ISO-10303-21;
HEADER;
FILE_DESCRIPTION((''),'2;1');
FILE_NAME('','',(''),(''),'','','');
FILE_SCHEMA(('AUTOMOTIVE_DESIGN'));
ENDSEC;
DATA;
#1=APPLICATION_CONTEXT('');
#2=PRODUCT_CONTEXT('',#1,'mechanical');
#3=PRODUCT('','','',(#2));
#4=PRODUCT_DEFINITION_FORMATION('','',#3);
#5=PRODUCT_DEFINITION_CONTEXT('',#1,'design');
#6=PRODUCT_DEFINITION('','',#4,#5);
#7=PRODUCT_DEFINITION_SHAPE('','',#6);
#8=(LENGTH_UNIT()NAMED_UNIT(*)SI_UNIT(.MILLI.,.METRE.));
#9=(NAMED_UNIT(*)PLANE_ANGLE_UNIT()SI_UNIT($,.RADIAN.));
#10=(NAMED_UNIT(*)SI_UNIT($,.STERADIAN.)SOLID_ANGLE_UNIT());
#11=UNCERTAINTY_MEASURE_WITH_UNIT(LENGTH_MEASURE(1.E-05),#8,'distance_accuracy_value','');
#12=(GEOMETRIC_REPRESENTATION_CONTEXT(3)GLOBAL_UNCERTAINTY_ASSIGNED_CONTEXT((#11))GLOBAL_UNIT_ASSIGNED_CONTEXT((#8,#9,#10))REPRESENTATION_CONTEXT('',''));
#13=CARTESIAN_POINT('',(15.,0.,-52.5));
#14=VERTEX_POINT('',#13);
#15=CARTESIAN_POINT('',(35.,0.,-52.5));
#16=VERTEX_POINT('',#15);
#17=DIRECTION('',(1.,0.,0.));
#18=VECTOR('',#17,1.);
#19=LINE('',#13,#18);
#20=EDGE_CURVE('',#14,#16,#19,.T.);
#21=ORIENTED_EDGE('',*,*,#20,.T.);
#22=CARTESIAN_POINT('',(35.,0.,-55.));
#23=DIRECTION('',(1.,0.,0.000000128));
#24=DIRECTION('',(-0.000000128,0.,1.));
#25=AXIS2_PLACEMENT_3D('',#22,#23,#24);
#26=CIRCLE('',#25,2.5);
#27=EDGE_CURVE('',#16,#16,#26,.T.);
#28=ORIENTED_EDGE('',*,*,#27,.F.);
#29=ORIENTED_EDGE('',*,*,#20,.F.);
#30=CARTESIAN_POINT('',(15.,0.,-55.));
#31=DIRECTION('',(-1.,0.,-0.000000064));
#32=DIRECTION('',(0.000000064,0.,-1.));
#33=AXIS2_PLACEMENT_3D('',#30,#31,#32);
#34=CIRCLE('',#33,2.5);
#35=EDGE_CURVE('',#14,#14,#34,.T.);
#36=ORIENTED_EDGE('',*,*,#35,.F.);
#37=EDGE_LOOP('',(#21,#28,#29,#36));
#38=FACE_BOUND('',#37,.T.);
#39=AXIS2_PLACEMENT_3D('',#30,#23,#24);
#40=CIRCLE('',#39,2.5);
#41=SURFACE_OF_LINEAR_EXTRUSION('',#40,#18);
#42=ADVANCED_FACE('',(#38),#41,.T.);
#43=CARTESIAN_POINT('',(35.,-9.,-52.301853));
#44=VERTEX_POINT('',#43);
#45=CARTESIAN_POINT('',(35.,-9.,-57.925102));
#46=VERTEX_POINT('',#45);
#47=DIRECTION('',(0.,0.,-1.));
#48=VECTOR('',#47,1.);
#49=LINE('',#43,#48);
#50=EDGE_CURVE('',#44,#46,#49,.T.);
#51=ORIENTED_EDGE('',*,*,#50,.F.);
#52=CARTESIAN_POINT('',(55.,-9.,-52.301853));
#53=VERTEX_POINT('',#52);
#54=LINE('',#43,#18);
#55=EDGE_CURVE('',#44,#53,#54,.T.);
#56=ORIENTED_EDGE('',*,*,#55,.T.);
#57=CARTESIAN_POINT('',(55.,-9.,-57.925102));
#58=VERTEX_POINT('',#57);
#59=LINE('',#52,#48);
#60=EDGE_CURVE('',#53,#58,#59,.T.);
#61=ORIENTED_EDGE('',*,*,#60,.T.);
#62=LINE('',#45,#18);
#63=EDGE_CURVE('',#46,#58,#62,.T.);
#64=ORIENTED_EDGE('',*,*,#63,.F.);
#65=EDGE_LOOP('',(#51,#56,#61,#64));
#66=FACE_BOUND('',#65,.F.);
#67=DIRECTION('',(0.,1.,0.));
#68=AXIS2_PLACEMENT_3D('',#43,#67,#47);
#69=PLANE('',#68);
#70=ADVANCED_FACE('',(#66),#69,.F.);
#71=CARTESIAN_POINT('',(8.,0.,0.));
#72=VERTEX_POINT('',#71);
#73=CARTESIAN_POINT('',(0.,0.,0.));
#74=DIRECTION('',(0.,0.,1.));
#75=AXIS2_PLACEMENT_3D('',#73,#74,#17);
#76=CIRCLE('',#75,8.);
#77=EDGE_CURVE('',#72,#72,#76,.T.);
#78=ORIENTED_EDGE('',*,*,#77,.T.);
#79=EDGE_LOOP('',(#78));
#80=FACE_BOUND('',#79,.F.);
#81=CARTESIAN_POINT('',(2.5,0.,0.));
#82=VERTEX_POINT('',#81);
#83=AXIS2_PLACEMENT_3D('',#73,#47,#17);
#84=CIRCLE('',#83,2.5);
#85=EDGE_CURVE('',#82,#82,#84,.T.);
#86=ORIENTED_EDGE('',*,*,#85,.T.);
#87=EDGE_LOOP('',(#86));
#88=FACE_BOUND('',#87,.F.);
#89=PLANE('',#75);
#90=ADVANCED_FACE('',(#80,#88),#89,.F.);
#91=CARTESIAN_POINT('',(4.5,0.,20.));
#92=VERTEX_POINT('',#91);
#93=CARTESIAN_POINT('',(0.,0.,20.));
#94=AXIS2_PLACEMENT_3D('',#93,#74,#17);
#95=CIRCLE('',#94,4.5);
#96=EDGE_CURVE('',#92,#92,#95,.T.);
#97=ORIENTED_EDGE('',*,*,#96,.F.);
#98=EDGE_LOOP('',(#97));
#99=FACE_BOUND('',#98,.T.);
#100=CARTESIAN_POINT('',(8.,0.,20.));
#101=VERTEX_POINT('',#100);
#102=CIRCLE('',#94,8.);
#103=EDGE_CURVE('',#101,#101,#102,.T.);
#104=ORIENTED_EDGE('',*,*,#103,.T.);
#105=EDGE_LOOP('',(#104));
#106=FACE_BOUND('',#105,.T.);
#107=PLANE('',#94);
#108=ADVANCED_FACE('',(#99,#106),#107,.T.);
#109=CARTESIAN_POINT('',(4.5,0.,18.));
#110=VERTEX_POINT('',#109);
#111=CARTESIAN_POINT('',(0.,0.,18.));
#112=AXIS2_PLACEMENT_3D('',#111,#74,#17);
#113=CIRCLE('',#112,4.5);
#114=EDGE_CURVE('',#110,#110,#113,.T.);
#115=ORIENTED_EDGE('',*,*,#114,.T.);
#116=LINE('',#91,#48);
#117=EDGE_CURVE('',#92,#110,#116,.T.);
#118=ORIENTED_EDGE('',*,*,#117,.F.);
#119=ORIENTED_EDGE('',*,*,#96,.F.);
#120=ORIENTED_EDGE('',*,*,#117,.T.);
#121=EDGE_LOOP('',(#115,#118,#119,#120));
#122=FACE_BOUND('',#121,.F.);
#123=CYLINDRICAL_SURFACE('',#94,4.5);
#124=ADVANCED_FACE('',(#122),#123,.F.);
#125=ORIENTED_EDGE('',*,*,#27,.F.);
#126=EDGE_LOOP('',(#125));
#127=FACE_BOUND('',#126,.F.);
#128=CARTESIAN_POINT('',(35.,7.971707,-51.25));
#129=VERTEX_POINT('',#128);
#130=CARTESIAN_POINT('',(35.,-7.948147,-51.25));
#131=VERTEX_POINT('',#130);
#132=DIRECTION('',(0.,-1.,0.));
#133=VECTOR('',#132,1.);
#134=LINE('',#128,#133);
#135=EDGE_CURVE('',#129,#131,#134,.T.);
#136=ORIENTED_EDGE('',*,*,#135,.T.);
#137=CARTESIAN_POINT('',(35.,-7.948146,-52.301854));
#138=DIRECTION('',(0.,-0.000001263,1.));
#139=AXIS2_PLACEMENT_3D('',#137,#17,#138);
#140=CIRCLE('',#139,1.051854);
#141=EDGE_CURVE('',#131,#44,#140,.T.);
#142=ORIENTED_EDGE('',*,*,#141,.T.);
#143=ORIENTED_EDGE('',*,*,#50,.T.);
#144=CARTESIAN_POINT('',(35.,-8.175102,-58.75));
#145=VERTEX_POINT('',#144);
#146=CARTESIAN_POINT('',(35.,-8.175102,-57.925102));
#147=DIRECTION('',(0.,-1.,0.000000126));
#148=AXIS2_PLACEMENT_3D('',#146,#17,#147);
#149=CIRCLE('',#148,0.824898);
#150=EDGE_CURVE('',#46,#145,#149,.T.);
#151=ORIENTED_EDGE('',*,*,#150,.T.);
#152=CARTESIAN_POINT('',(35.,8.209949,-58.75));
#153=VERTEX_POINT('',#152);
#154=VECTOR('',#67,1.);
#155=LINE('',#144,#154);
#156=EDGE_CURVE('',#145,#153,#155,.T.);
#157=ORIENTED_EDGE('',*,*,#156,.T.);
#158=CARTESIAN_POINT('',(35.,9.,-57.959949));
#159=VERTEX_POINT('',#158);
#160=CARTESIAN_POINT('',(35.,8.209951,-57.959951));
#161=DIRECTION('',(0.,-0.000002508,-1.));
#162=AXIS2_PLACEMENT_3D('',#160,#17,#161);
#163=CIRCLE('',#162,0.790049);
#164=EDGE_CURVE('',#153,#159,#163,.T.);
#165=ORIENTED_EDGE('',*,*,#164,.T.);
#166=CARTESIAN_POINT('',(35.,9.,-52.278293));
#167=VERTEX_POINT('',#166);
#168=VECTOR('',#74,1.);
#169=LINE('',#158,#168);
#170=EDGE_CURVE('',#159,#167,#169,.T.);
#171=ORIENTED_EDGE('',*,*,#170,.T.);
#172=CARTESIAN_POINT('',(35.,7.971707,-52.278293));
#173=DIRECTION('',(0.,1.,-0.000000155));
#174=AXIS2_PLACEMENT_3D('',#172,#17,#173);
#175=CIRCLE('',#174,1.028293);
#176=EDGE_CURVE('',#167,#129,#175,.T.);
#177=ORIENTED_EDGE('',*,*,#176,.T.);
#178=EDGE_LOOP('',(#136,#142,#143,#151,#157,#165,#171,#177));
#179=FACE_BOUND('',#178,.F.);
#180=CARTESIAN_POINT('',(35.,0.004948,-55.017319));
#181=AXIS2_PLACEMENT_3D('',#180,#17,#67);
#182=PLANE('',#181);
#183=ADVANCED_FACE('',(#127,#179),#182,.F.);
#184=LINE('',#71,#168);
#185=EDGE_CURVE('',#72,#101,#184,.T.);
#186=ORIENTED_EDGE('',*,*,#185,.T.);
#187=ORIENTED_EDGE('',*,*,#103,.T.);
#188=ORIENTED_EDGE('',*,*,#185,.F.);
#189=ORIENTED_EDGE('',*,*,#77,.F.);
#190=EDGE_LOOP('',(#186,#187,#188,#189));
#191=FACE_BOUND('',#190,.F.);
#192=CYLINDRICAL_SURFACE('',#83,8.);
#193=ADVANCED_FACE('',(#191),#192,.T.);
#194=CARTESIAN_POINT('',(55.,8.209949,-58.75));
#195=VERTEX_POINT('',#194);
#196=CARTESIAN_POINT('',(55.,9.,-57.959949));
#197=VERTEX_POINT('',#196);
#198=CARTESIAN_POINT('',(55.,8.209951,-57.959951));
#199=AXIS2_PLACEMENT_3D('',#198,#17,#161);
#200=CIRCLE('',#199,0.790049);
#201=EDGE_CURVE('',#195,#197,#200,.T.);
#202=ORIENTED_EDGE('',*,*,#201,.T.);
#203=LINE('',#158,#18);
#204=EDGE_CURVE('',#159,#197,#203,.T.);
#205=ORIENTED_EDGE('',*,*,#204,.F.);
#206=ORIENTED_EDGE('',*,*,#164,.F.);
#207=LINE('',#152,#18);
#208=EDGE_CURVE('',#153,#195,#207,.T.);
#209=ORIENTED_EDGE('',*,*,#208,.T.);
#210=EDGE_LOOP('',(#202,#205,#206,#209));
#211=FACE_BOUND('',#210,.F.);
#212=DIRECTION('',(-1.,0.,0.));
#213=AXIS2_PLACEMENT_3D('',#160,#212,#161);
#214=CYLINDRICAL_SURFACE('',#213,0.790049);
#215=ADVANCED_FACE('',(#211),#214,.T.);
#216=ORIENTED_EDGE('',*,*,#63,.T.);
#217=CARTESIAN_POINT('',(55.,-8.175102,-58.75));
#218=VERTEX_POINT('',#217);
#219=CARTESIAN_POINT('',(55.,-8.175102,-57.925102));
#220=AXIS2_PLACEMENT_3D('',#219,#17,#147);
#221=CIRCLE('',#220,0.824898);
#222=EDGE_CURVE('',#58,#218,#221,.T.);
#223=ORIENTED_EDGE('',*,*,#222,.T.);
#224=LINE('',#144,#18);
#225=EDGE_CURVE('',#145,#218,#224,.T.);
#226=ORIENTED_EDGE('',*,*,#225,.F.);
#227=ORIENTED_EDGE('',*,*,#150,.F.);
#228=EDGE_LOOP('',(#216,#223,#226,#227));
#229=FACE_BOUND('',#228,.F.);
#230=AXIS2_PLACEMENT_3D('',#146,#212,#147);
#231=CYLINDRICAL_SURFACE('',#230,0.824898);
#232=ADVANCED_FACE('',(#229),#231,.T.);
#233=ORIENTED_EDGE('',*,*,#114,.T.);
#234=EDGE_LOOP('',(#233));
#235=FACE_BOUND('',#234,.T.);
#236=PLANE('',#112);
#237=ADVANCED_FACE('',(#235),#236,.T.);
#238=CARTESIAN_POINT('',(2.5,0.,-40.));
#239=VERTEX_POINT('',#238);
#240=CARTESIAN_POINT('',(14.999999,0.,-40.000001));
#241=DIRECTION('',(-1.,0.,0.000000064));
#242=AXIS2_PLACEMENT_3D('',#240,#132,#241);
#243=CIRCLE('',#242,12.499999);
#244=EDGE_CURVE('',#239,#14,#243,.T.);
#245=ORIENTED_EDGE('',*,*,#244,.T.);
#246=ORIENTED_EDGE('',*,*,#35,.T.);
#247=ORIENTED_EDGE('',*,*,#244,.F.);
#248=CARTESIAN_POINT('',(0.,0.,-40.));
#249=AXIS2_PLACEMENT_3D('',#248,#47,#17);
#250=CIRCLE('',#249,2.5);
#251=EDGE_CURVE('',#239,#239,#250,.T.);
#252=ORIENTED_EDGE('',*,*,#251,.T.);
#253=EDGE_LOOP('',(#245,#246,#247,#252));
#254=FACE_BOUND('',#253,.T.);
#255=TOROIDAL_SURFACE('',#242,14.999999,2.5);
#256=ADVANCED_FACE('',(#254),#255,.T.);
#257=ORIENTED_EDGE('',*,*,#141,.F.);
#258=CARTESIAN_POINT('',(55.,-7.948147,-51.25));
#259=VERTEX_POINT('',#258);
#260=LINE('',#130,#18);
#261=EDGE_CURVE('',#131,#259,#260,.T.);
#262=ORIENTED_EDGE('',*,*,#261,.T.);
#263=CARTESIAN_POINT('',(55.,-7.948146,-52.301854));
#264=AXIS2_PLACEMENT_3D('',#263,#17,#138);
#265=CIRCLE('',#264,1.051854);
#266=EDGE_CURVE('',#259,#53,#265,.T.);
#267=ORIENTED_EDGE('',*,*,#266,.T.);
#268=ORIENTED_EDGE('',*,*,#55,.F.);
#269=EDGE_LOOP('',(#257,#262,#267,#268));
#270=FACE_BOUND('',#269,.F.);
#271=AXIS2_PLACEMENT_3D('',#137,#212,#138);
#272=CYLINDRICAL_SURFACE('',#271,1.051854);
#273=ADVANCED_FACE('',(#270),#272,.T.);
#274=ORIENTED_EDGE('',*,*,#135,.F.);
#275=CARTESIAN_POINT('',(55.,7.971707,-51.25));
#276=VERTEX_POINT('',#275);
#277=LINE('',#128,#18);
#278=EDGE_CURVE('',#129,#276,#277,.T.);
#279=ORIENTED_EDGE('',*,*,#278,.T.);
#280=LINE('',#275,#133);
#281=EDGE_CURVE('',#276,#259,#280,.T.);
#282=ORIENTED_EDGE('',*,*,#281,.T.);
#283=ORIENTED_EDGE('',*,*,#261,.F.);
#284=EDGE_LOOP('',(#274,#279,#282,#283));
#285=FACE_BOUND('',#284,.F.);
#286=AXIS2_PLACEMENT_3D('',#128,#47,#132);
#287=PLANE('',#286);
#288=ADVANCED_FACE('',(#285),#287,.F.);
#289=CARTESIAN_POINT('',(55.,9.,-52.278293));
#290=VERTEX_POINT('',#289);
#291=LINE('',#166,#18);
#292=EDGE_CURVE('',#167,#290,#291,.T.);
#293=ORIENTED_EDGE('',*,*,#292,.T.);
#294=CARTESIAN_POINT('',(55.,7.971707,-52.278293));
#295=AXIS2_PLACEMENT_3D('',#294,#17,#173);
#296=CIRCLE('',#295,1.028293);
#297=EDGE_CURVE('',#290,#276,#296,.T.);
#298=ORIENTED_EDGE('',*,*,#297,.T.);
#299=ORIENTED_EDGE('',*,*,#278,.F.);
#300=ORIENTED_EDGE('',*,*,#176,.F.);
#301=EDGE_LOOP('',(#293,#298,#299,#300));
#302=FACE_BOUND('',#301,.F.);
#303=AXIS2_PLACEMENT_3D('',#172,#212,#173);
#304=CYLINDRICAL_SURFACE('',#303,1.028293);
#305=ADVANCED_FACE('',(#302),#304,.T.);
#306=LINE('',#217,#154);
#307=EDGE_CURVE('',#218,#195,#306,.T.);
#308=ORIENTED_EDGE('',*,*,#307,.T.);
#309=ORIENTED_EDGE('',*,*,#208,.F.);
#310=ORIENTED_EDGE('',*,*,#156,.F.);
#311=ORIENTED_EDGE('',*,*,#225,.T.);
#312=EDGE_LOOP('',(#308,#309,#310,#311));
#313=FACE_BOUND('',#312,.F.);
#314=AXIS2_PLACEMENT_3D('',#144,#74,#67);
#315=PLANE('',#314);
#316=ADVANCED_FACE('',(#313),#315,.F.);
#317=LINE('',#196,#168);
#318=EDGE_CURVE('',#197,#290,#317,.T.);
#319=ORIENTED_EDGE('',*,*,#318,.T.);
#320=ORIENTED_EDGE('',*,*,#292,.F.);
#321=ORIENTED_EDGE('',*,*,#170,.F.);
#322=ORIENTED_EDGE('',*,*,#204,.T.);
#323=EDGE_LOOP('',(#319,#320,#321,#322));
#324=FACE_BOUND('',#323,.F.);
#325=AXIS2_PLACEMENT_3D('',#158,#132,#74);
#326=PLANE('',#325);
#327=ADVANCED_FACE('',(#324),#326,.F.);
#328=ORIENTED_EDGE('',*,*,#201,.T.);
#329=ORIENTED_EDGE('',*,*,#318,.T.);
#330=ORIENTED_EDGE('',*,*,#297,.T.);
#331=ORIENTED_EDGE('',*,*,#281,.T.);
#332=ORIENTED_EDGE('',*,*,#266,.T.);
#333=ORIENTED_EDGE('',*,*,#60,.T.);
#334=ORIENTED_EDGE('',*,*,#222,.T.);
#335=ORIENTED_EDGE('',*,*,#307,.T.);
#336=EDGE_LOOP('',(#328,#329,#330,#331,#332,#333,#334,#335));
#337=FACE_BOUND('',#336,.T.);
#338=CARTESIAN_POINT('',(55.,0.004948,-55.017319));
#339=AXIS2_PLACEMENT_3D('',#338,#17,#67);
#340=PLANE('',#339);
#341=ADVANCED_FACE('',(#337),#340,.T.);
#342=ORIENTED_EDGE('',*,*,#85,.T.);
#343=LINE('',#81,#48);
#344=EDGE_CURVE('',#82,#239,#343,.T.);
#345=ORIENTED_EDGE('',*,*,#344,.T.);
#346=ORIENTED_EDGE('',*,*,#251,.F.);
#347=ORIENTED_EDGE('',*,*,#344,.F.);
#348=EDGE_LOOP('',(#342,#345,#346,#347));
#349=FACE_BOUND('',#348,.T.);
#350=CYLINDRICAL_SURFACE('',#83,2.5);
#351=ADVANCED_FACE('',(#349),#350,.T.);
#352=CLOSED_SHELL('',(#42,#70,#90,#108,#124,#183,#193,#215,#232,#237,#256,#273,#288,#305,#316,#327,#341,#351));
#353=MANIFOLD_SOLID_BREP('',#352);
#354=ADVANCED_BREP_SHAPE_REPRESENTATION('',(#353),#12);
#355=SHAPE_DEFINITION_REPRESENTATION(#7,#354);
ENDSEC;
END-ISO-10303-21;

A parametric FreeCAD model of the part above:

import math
import FreeCAD as App
import Part
import Sketcher
from FreeCAD import Vector

doc = App.newDocument("Part")
body = doc.addObject("PartDesign::Body", "Body")

# Sketch on XY plane
sketch1 = body.newObject("Sketcher::SketchObject", "Sketch")
sketch1.AttachmentSupport = (doc.getObject("XY_Plane"), [""])
sketch1.MapMode = "FlatFace"
sketch1.addGeometry(Part.Circle(Vector(0, 0, 0), Vector(0, 0, 1), 8), False)
sketch1.addConstraint([
    Sketcher.Constraint("Coincident", 0, 3, -1, 1),
    Sketcher.Constraint("Diameter", 0, 16.0),
])
pad1 = body.newObject("PartDesign::Pad", "Pad")
pad1.Profile = sketch1
pad1.Length = 20

# Sketch on XY plane
sketch2 = body.newObject("Sketcher::SketchObject", "Sketch001")
sketch2.AttachmentSupport = (doc.getObject("XY_Plane"), [""])
sketch2.MapMode = "FlatFace"
sketch2.addGeometry(Part.Circle(Vector(0, 0, 0), Vector(0, 0, 1), 2.5), False)
sketch2.addConstraint([
    Sketcher.Constraint("Coincident", 0, 3, -1, 1),
    Sketcher.Constraint("Diameter", 0, 5.0),
])

# Sketch on XZ plane
sketch3 = body.newObject("Sketcher::SketchObject", "Sketch002")
sketch3.AttachmentSupport = (doc.getObject("XZ_Plane"), [""])
sketch3.MapMode = "FlatFace"
sketch3.addGeometry([
    Part.LineSegment(Vector(0, 0, 0), Vector(0, -40, 0)),
    Part.ArcOfCircle(Part.Circle(Vector(15, -40, 0), Vector(0, 0, 1), 15), math.radians(180), math.radians(270)),
    Part.LineSegment(Vector(15, -55, 0), Vector(35, -55, 0)),
], False)
sketch3.addConstraint([
    Sketcher.Constraint("Tangent", 0, 2, 1, 1),
    Sketcher.Constraint("Tangent", 1, 2, 2, 1),
    Sketcher.Constraint("Vertical", 0),
    Sketcher.Constraint("Horizontal", 2),
    Sketcher.Constraint("Coincident", 0, 1, -1, 1),
    Sketcher.Constraint("Radius", 1, 14.999999),
    Sketcher.Constraint("DistanceX", 2, 1, 2, 2, 20.0),
    Sketcher.Constraint("DistanceY", 0, 2, 0, 1, 40.0),
])
doc.recompute()

additivepipe = body.newObject("PartDesign::AdditivePipe", "AdditivePipe")
additivepipe.Profile = sketch2
additivepipe.Spine = (sketch3, ["Edge1", "Edge2", "Edge3"])

# Sketch on XY plane
sketch4 = body.newObject("Sketcher::SketchObject", "Sketch003")
sketch4.AttachmentSupport = (doc.getObject("XY_Plane"), [""])
sketch4.MapMode = "FlatFace"
sketch4.AttachmentOffset = App.Placement(Vector(0, 0, 20), App.Rotation())
sketch4.addGeometry(Part.Circle(Vector(0, 0, 0), Vector(0, 0, 1), 4.5), False)
sketch4.addConstraint([
    Sketcher.Constraint("Coincident", 0, 3, -1, 1),
    Sketcher.Constraint("Diameter", 0, 9.0),
])
pocket1 = body.newObject("PartDesign::Pocket", "Pocket")
pocket1.Profile = sketch4
pocket1.Length = 2

# Sketch on YZ plane
sketch5 = body.newObject("Sketcher::SketchObject", "Sketch004")
sketch5.AttachmentSupport = (doc.getObject("YZ_Plane"), [""])
sketch5.MapMode = "FlatFace"
sketch5.AttachmentOffset = App.Placement(Vector(0, 0, 35), App.Rotation())
sketch5.addGeometry([
    Part.LineSegment(Vector(-9, -52.3, 0), Vector(-9, -57.9, 0)),  # 0
    Part.ArcOfCircle(Part.Circle(Vector(-8.2, -57.9, 0), Vector(0, 0, 1), 0.8), math.radians(180), math.radians(270)),  # 1
    Part.LineSegment(Vector(-8.2, -58.8, 0), Vector(8.2, -58.8, 0)),  # 2
    Part.ArcOfCircle(Part.Circle(Vector(8.2, -58, 0), Vector(0, 0, 1), 0.8), math.radians(-90), math.radians(0)),  # 3
    Part.LineSegment(Vector(9, -58, 0), Vector(9, -52.3, 0)),  # 4
    Part.ArcOfCircle(Part.Circle(Vector(8, -52.3, 0), Vector(0, 0, 1), 1), math.radians(0), math.radians(90)),  # 5
    Part.LineSegment(Vector(8, -51.2, 0), Vector(-7.9, -51.2, 0)),  # 6
    Part.ArcOfCircle(Part.Circle(Vector(-7.9, -52.3, 0), Vector(0, 0, 1), 1.1), math.radians(90), math.radians(180)),  # 7
], False)
sketch5.addConstraint([
    Sketcher.Constraint("Tangent", 0, 2, 1, 1),
    Sketcher.Constraint("Tangent", 1, 2, 2, 1),
    Sketcher.Constraint("Coincident", 2, 2, 3, 1),
    Sketcher.Constraint("Coincident", 3, 2, 4, 1),
    Sketcher.Constraint("Tangent", 4, 2, 5, 1),
    Sketcher.Constraint("Tangent", 5, 2, 6, 1),
    Sketcher.Constraint("Tangent", 6, 2, 7, 1),
    Sketcher.Constraint("Tangent", 7, 2, 0, 1),
    Sketcher.Constraint("Vertical", 0),
    Sketcher.Constraint("Horizontal", 2),
    Sketcher.Constraint("Vertical", 4),
    Sketcher.Constraint("Horizontal", 6),
    Sketcher.Constraint("Vertical", 3, 3, 2, 2),
    Sketcher.Constraint("DistanceX", 0, 2, -1, 1, 9.0),
    Sketcher.Constraint("DistanceX", -1, 1, 3, 2, 9.0),
    Sketcher.Constraint("DistanceY", 2, 2, 5, 2, 7.5),
    Sketcher.Constraint("DistanceY", 1, 2, -1, 1, 58.75),
    Sketcher.Constraint("Radius", 3, 0.790049),
    Sketcher.Constraint("Radius", 1, 0.824898),
    Sketcher.Constraint("Radius", 5, 1.028293),
    Sketcher.Constraint("Radius", 7, 1.051854),
    Sketcher.Constraint("DistanceY", 4, 1, 4, 2, 5.681656),
])
pad2 = body.newObject("PartDesign::Pad", "Pad001")
pad2.Profile = sketch5
pad2.Length = 20

doc.recompute()
